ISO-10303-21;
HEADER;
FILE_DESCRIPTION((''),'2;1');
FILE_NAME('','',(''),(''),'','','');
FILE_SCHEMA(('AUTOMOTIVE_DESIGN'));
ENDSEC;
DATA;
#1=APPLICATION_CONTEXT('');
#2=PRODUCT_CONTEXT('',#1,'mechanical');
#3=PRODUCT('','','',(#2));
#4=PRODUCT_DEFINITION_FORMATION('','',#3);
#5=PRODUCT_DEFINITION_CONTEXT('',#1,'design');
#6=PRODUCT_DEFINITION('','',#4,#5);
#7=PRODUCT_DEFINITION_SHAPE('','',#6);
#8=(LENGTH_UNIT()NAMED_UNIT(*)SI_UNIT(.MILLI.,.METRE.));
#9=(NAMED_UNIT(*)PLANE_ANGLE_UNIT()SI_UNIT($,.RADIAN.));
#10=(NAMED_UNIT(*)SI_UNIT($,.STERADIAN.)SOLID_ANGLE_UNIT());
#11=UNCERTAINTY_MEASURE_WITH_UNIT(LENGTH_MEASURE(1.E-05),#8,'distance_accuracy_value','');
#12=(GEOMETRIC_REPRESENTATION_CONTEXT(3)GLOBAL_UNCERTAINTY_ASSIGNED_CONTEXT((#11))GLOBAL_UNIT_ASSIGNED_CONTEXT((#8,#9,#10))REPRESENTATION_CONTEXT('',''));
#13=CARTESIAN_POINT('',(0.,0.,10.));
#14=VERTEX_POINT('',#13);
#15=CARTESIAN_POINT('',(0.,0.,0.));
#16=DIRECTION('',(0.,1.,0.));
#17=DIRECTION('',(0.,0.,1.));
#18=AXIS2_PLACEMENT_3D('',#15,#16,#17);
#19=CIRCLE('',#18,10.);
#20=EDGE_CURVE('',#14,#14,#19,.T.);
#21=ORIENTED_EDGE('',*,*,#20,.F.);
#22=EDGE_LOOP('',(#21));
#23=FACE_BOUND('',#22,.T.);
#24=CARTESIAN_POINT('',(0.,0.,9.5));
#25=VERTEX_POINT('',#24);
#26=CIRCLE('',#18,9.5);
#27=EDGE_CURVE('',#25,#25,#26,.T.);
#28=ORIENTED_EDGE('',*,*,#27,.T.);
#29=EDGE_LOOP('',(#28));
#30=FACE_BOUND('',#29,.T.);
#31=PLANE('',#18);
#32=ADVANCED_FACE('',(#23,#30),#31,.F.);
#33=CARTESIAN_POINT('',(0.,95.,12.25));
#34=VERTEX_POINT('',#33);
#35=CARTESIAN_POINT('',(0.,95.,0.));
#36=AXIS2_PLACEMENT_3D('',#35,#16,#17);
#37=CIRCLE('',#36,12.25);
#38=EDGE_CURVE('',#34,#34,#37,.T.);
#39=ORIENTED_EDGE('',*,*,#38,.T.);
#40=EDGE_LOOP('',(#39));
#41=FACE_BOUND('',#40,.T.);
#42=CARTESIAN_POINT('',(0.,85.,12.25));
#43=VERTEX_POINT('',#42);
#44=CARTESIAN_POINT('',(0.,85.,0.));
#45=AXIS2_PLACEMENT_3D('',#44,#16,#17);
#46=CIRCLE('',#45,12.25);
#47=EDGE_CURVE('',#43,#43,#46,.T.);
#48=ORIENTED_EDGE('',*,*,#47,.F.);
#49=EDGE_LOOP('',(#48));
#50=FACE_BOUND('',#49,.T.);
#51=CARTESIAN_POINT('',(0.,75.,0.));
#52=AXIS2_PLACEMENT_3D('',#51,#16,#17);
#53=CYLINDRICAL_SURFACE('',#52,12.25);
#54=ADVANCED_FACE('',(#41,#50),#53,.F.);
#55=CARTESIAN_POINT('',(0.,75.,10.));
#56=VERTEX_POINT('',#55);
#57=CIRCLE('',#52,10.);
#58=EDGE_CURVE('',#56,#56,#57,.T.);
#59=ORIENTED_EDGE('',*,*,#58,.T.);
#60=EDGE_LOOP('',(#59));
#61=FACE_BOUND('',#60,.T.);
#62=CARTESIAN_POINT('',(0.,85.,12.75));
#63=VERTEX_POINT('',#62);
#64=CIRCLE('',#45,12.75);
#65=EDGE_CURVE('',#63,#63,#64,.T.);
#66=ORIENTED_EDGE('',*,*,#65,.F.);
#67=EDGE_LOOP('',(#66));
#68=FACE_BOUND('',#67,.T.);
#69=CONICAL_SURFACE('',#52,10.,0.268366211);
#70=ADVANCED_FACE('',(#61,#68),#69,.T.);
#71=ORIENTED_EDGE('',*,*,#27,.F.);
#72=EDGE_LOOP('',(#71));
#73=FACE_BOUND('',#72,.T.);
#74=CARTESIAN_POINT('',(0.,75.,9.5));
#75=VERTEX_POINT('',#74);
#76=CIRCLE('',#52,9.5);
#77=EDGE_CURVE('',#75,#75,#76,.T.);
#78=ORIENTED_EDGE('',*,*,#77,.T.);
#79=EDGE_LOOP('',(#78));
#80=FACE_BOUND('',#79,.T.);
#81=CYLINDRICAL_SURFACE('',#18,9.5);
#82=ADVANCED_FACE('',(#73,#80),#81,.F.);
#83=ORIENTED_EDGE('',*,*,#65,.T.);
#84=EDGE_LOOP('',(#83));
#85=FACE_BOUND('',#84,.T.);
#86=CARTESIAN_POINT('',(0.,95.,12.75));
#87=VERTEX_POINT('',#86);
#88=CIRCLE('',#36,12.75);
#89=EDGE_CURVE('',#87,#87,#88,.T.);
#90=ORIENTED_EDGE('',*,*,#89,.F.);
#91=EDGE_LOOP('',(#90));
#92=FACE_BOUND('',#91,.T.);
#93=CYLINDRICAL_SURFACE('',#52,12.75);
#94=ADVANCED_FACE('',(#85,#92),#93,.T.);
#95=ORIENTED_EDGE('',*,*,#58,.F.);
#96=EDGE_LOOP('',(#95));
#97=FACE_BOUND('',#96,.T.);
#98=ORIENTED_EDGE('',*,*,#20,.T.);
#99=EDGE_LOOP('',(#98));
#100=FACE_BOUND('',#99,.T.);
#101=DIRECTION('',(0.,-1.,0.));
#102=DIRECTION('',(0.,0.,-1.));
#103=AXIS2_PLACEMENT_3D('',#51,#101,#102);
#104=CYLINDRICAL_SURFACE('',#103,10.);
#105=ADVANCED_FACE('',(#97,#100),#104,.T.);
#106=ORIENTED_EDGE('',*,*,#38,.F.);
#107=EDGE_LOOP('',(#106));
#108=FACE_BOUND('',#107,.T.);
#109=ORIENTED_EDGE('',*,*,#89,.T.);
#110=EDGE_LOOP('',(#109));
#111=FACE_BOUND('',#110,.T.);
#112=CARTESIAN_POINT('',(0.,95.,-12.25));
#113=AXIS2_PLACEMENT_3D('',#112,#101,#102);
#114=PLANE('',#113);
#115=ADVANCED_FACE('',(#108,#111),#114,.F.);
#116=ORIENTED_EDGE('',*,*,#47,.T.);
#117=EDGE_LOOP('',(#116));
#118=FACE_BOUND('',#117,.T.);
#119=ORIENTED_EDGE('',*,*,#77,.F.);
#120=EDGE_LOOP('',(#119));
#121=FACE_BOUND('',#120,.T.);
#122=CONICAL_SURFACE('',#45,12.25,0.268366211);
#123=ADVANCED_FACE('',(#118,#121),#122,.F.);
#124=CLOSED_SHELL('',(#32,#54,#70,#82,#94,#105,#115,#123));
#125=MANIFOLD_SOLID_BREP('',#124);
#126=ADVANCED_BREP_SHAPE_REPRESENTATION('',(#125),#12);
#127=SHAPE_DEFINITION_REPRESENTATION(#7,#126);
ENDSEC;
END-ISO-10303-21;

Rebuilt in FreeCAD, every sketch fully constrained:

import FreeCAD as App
import Part
import Sketcher

doc = App.newDocument("Part")
body = doc.addObject("PartDesign::Body", "Body")

# Sketch on XZ plane
sketch1 = body.newObject("Sketcher::SketchObject", "Sketch")
sketch1.AttachmentSupport = (doc.getObject("XZ_Plane"), [""])
sketch1.MapMode = "FlatFace"
sketch1.addGeometry(Part.Circle(App.Vector(0, 0, 0), App.Vector(0, 0, 1), 10), False)
sketch1.addConstraint(Sketcher.Constraint("Coincident", 0, 3, -1, 1))
sketch1.addConstraint(Sketcher.Constraint("Diameter", 0, 20.0))
pad1 = body.newObject("PartDesign::Pad", "Pad")
pad1.Profile = sketch1
pad1.Length = 75
pad1.Reversed = True

# Sketch on XZ plane
sketch2 = body.newObject("Sketcher::SketchObject", "Sketch001")
sketch2.AttachmentSupport = (doc.getObject("XZ_Plane"), [""])
sketch2.MapMode = "FlatFace"
sketch2.AttachmentOffset = App.Placement(App.Vector(0, 0, -75), App.Rotation())
sketch2.addGeometry(Part.Circle(App.Vector(0, 0, 0), App.Vector(0, 0, 1), 9.5), False)
sketch2.addConstraint(Sketcher.Constraint("Coincident", 0, 3, -1, 1))
sketch2.addConstraint(Sketcher.Constraint("Diameter", 0, 19.0))
pocket1 = body.newObject("PartDesign::Pocket", "Pocket")
pocket1.Profile = sketch2
pocket1.Type = "ThroughAll"
pocket1.Reversed = True

# Sketch on YZ plane
sketch3 = body.newObject("Sketcher::SketchObject", "Sketch002")
sketch3.AttachmentSupport = (doc.getObject("YZ_Plane"), [""])
sketch3.MapMode = "FlatFace"
sketch3.addGeometry(Part.LineSegment(App.Vector(75, -10, 0), App.Vector(85, -12.75, 0)), False)
sketch3.addGeometry(Part.LineSegment(App.Vector(85, -12.75, 0), App.Vector(85, -12.25, 0)), False)
sketch3.addGeometry(Part.LineSegment(App.Vector(85, -12.25, 0), App.Vector(75, -9.5, 0)), False)
sketch3.addGeometry(Part.LineSegment(App.Vector(75, -9.5, 0), App.Vector(75, -10, 0)), False)
sketch3.addConstraint(Sketcher.Constraint("Coincident", 0, 2, 1, 1))
sketch3.addConstraint(Sketcher.Constraint("Coincident", 1, 2, 2, 1))
sketch3.addConstraint(Sketcher.Constraint("Coincident", 2, 2, 3, 1))
sketch3.addConstraint(Sketcher.Constraint("Coincident", 3, 2, 0, 1))
sketch3.addConstraint(Sketcher.Constraint("Vertical", 1))
sketch3.addConstraint(Sketcher.Constraint("Vertical", 3))
sketch3.addConstraint(Sketcher.Constraint("Parallel", 0, 2))
sketch3.addConstraint(Sketcher.Constraint("DistanceY", 1, 1, 1, 2, 0.5))
sketch3.addConstraint(Sketcher.Constraint("DistanceX", -1, 1, 0, 2, 85.0))
sketch3.addConstraint(Sketcher.Constraint("DistanceX", -1, 1, 2, 2, 75.0))
sketch3.addConstraint(Sketcher.Constraint("DistanceY", 3, 2, -1, 1, 10.0))
sketch3.addConstraint(Sketcher.Constraint("DistanceY", 0, 2, -1, 1, 12.75))
revolution = body.newObject("PartDesign::Revolution", "Revolution")
revolution.Profile = sketch3
revolution.ReferenceAxis = (sketch3, ["H_Axis"])
revolution.Angle = 360

# Sketch on YZ plane
sketch4 = body.newObject("Sketcher::SketchObject", "Sketch003")
sketch4.AttachmentSupport = (doc.getObject("YZ_Plane"), [""])
sketch4.MapMode = "FlatFace"
sketch4.addGeometry(Part.LineSegment(App.Vector(95, -12.25, 0), App.Vector(85, -12.25, 0)), False)
sketch4.addGeometry(Part.LineSegment(App.Vector(85, -12.25, 0), App.Vector(85, -12.75, 0)), False)
sketch4.addGeometry(Part.LineSegment(App.Vector(85, -12.75, 0), App.Vector(95, -12.75, 0)), False)
sketch4.addGeometry(Part.LineSegment(App.Vector(95, -12.75, 0), App.Vector(95, -12.25, 0)), False)
sketch4.addConstraint(Sketcher.Constraint("Coincident", 0, 2, 1, 1))
sketch4.addConstraint(Sketcher.Constraint("Coincident", 1, 2, 2, 1))
sketch4.addConstraint(Sketcher.Constraint("Coincident", 2, 2, 3, 1))
sketch4.addConstraint(Sketcher.Constraint("Coincident", 3, 2, 0, 1))
sketch4.addConstraint(Sketcher.Constraint("Horizontal", 0))
sketch4.addConstraint(Sketcher.Constraint("Vertical", 1))
sketch4.addConstraint(Sketcher.Constraint("Horizontal", 2))
sketch4.addConstraint(Sketcher.Constraint("Vertical", 3))
sketch4.addConstraint(Sketcher.Constraint("DistanceX", 0, 2, 0, 1, 10.0))
sketch4.addConstraint(Sketcher.Constraint("DistanceY", 1, 2, 1, 1, 0.5))
sketch4.addConstraint(Sketcher.Constraint("DistanceX", -1, 1, 0, 2, 85.0))
sketch4.addConstraint(Sketcher.Constraint("DistanceY", 0, 2, -1, 1, 12.25))
revolution2 = body.newObject("PartDesign::Revolution", "Revolution001")
revolution2.Profile = sketch4
revolution2.ReferenceAxis = (sketch4, ["H_Axis"])
revolution2.Angle = 360

doc.recompute()
